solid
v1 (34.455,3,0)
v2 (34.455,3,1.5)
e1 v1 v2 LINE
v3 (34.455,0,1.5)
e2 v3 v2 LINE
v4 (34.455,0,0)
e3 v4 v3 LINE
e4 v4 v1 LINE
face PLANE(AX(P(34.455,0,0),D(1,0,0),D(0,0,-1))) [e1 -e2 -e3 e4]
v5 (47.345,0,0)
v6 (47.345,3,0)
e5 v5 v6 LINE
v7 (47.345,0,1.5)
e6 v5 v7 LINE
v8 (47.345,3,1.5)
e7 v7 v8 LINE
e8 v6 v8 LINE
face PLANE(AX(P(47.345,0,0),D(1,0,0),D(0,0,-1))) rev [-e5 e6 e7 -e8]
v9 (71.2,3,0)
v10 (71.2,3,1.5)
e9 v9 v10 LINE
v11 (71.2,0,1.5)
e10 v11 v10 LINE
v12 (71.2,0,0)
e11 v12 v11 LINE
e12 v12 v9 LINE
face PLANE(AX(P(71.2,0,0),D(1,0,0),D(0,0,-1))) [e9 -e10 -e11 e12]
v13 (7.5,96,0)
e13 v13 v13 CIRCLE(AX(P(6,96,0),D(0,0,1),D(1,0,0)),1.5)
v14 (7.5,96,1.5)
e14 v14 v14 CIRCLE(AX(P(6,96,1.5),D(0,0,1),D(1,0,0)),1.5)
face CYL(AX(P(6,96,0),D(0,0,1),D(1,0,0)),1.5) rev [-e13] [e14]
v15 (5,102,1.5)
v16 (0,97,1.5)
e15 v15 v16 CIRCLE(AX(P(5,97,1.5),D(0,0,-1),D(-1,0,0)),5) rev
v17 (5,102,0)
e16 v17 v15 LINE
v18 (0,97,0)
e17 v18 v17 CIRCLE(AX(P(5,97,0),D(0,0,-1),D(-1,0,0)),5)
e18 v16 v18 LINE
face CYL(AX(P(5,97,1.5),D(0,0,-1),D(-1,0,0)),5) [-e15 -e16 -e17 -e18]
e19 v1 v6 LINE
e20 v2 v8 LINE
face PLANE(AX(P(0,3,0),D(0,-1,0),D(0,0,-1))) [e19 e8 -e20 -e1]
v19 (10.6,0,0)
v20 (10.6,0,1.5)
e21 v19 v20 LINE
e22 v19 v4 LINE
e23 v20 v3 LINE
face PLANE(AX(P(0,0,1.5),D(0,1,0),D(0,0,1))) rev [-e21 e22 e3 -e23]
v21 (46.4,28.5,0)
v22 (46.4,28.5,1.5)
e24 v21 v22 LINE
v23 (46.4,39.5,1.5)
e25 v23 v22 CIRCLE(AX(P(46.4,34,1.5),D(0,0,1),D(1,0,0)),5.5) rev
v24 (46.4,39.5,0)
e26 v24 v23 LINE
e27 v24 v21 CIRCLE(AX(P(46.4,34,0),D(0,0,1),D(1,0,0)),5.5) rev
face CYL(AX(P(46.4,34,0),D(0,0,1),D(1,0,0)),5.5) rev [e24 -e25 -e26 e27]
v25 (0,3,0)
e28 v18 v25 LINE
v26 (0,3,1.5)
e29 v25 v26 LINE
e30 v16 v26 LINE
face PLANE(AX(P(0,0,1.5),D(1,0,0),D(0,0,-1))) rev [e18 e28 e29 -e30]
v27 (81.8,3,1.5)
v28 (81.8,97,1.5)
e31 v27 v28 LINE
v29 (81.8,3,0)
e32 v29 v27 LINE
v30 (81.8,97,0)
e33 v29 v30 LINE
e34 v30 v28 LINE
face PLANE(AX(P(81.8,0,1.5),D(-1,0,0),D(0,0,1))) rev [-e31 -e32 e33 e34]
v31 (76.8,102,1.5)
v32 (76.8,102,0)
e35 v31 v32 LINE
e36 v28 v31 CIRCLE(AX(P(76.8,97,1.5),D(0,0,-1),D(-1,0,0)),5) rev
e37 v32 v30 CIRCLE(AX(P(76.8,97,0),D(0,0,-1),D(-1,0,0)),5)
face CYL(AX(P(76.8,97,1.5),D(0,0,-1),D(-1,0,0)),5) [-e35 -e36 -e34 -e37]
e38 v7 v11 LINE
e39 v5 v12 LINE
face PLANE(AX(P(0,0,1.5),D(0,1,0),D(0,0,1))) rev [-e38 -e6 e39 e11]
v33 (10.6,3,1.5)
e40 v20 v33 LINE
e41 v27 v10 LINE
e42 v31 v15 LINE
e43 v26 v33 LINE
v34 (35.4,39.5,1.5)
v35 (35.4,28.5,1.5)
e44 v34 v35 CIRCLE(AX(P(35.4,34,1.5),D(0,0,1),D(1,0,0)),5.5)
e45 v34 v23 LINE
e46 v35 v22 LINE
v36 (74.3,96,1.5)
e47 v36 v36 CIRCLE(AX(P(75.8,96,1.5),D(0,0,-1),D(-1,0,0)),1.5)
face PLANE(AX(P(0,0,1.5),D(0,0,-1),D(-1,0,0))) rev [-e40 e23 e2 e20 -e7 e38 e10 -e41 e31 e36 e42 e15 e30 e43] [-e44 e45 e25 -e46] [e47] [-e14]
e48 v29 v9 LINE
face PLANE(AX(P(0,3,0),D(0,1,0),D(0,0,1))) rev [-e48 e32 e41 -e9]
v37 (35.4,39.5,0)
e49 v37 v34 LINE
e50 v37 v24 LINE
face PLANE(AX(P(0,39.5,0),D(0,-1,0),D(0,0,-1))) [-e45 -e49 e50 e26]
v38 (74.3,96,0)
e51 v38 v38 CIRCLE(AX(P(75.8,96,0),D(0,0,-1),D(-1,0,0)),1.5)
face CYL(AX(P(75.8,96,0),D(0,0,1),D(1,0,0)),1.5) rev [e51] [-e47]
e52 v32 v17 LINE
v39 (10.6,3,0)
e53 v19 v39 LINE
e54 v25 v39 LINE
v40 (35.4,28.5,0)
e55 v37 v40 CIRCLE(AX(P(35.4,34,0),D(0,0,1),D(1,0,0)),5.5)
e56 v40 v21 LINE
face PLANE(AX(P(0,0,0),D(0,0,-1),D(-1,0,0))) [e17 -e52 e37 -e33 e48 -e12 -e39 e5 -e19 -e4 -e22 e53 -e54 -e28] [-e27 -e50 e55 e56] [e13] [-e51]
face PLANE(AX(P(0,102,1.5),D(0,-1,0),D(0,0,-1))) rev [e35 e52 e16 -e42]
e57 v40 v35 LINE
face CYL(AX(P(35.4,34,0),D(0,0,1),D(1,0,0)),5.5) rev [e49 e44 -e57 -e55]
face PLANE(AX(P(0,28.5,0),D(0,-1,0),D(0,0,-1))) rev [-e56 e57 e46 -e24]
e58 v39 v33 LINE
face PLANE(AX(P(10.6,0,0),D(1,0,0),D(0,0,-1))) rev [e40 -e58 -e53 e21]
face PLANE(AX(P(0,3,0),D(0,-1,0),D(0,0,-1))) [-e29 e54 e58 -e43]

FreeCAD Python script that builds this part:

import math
import FreeCAD as App
import Part
import Sketcher
Q = App.Units.Quantity


def edges_at(feature, points):
    """Names of the edges that pass closest to the given points."""
    edges = feature.Shape.Edges
    near = lambda p: min(range(len(edges)), key=lambda i: edges[i].distToShape(Part.Vertex(*p))[0])
    return sorted({f"Edge{near(p) + 1}" for p in points})


def add_polygon(sketch, points):
    """Adds a closed chain of lines whose ends are joined by coincident constraints."""
    first, n = sketch.GeometryCount, len(points)
    for a, b in zip(points, points[1:] + points[:1]):
        sketch.addGeometry(Part.LineSegment(App.Vector(*a, 0), App.Vector(*b, 0)), False)
    for i in range(n):
        sketch.addConstraint(Sketcher.Constraint("Coincident", first + i, 2, first + (i + 1) % n, 1))

doc = App.newDocument("Part")
body = doc.addObject("PartDesign::Body", "Body")

sketch1 = doc.addObject("Sketcher::SketchObject", "Sketch")
body.addObject(sketch1)
sketch1.AttachmentSupport = (doc.XY_Plane, [""])
sketch1.MapMode = "FlatFace"
add_polygon(sketch1, [(0, 102), (0, 0), (81.8, 0), (81.8, 102)])
sketch1.addConstraint([
    Sketcher.Constraint("Vertical", 0),
    Sketcher.Constraint("Horizontal", 1),
    Sketcher.Constraint("Vertical", 2),
    Sketcher.Constraint("Horizontal", 3),
    Sketcher.Constraint("Coincident", 0, 2, -1, 1),
    Sketcher.Constraint("DistanceY", 0, 2, 0, 1, Q("102 mm")),
    Sketcher.Constraint("DistanceX", 1, 1, 1, 2, Q("81.8 mm")),
])
pad1 = doc.addObject("PartDesign::Pad", "Pad")
body.addObject(pad1)
pad1.Profile = sketch1
pad1.Length = 1.5

sketch2 = doc.addObject("Sketcher::SketchObject", "Sketch001")
body.addObject(sketch2)
sketch2.AttachmentSupport = (doc.XY_Plane, [""])
sketch2.MapMode = "FlatFace"
sketch2.AttachmentOffset = App.Placement(App.Vector(0, 0, 1.5), App.Rotation())
add_polygon(sketch2, [(0, 3), (0, 0), (10.6, 0), (10.6, 3)])
add_polygon(sketch2, [(47.345, 0), (47.345, 3), (34.455, 3), (34.455, 0)])
add_polygon(sketch2, [(71.2, 3), (71.2, 0), (81.8, 0), (81.8, 3)])
sketch2.addGeometry(Part.Circle(App.Vector(6, 96, 0), App.Vector(0, 0, 1), 1.5), False)
sketch2.addGeometry(Part.Circle(App.Vector(75.8, 96, 0), App.Vector(0, 0, 1), 1.5), False)
sketch2.addConstraint([
    Sketcher.Constraint("Vertical", 0),
    Sketcher.Constraint("Horizontal", 1),
    Sketcher.Constraint("Vertical", 2),
    Sketcher.Constraint("Horizontal", 3),
    Sketcher.Constraint("Vertical", 4),
    Sketcher.Constraint("Horizontal", 5),
    Sketcher.Constraint("Vertical", 6),
    Sketcher.Constraint("Horizontal", 7),
    Sketcher.Constraint("Vertical", 8),
    Sketcher.Constraint("Horizontal", 9),
    Sketcher.Constraint("Vertical", 10),
    Sketcher.Constraint("Horizontal", 11),
    Sketcher.Constraint("Coincident", 0, 2, -1, 1),
    Sketcher.Constraint("Equal", 12, 13),
    Sketcher.Constraint("PointOnObject", 6, 2, -1),
    Sketcher.Constraint("PointOnObject", 8, 2, -1),
    Sketcher.Constraint("Horizontal", 12, 3, 13, 3),
    Sketcher.Constraint("Horizontal", 3, 2, 4, 2),
    Sketcher.Constraint("Horizontal", 5, 2, 10, 2),
    Sketcher.Constraint("Equal", 3, 9),
    Sketcher.Constraint("Diameter", 12, Q("3 mm")),
    Sketcher.Constraint("DistanceY", 0, 2, 0, 1, Q("3 mm")),
    Sketcher.Constraint("DistanceX", 1, 1, 1, 2, Q("10.6 mm")),
    Sketcher.Constraint("DistanceX", -1, 1, 12, 3, Q("6 mm")),
    Sketcher.Constraint("DistanceY", -1, 1, 12, 3, Q("96 mm")),
    Sketcher.Constraint("DistanceX", 5, 2, 5, 1, Q("12.89 mm")),
    Sketcher.Constraint("DistanceX", -1, 1, 13, 3, Q("75.8 mm")),
    Sketcher.Constraint("DistanceX", -1, 1, 8, 2, Q("71.2 mm")),
    Sketcher.Constraint("DistanceX", -1, 1, 4, 2, Q("47.345 mm")),
])
pocket1 = doc.addObject("PartDesign::Pocket", "Pocket")
body.addObject(pocket1)
pocket1.Profile = sketch2
pocket1.Type = "ThroughAll"

sketch3 = doc.addObject("Sketcher::SketchObject", "Sketch002")
body.addObject(sketch3)
sketch3.AttachmentSupport = (doc.XY_Plane, [""])
sketch3.MapMode = "FlatFace"
sketch3.AttachmentOffset = App.Placement(App.Vector(0, 0, 1.5), App.Rotation())
sketch3.addGeometry([
    Part.ArcOfCircle(Part.Circle(App.Vector(35.4, 34, 0), App.Vector(0, 0, 1), 5.5), math.radians(90), math.radians(180)),
    Part.ArcOfCircle(Part.Circle(App.Vector(35.4, 34, 0), App.Vector(0, 0, 1), 5.5), math.radians(180), math.radians(270)),
    Part.LineSegment(App.Vector(35.4, 28.5, 0), App.Vector(46.4, 28.5, 0)),
    Part.ArcOfCircle(Part.Circle(App.Vector(46.4, 34, 0), App.Vector(0, 0, 1), 5.5), math.radians(-90), math.radians(0)),
    Part.ArcOfCircle(Part.Circle(App.Vector(46.4, 34, 0), App.Vector(0, 0, 1), 5.5), math.radians(0), math.radians(90)),
    Part.LineSegment(App.Vector(46.4, 39.5, 0), App.Vector(35.4, 39.5, 0)),
], False)
sketch3.addConstraint([
    Sketcher.Constraint("Tangent", 0, 2, 1, 1),
    Sketcher.Constraint("Tangent", 1, 2, 2, 1),
    Sketcher.Constraint("Tangent", 2, 2, 3, 1),
    Sketcher.Constraint("Tangent", 3, 2, 4, 1),
    Sketcher.Constraint("Tangent", 4, 2, 5, 1),
    Sketcher.Constraint("Tangent", 5, 2, 0, 1),
    Sketcher.Constraint("Horizontal", 2),
    Sketcher.Constraint("Horizontal", 5),
    Sketcher.Constraint("Equal", 0, 1),
    Sketcher.Constraint("Equal", 1, 3),
    Sketcher.Constraint("Horizontal", 4, 3, 0, 2),
    Sketcher.Constraint("Horizontal", 0, 2, 3, 2),
    Sketcher.Constraint("Radius", 0, Q("5.5 mm")),
    Sketcher.Constraint("DistanceX", 2, 1, 2, 2, Q("11 mm")),
    Sketcher.Constraint("DistanceY", -1, 1, 0, 3, Q("34 mm")),
    Sketcher.Constraint("DistanceX", -1, 1, 0, 3, Q("35.4 mm")),
])
pocket2 = doc.addObject("PartDesign::Pocket", "Pocket001")
body.addObject(pocket2)
pocket2.Profile = sketch3
pocket2.Type = "ThroughAll"
doc.recompute()

fillet = doc.addObject("PartDesign::Fillet", "Fillet")
body.addObject(fillet)
fillet.Base = (pocket2, edges_at(pocket2, [(0, 102, 0.75), (81.8, 102, 0.75)]))
fillet.Radius = 5

doc.recompute()
